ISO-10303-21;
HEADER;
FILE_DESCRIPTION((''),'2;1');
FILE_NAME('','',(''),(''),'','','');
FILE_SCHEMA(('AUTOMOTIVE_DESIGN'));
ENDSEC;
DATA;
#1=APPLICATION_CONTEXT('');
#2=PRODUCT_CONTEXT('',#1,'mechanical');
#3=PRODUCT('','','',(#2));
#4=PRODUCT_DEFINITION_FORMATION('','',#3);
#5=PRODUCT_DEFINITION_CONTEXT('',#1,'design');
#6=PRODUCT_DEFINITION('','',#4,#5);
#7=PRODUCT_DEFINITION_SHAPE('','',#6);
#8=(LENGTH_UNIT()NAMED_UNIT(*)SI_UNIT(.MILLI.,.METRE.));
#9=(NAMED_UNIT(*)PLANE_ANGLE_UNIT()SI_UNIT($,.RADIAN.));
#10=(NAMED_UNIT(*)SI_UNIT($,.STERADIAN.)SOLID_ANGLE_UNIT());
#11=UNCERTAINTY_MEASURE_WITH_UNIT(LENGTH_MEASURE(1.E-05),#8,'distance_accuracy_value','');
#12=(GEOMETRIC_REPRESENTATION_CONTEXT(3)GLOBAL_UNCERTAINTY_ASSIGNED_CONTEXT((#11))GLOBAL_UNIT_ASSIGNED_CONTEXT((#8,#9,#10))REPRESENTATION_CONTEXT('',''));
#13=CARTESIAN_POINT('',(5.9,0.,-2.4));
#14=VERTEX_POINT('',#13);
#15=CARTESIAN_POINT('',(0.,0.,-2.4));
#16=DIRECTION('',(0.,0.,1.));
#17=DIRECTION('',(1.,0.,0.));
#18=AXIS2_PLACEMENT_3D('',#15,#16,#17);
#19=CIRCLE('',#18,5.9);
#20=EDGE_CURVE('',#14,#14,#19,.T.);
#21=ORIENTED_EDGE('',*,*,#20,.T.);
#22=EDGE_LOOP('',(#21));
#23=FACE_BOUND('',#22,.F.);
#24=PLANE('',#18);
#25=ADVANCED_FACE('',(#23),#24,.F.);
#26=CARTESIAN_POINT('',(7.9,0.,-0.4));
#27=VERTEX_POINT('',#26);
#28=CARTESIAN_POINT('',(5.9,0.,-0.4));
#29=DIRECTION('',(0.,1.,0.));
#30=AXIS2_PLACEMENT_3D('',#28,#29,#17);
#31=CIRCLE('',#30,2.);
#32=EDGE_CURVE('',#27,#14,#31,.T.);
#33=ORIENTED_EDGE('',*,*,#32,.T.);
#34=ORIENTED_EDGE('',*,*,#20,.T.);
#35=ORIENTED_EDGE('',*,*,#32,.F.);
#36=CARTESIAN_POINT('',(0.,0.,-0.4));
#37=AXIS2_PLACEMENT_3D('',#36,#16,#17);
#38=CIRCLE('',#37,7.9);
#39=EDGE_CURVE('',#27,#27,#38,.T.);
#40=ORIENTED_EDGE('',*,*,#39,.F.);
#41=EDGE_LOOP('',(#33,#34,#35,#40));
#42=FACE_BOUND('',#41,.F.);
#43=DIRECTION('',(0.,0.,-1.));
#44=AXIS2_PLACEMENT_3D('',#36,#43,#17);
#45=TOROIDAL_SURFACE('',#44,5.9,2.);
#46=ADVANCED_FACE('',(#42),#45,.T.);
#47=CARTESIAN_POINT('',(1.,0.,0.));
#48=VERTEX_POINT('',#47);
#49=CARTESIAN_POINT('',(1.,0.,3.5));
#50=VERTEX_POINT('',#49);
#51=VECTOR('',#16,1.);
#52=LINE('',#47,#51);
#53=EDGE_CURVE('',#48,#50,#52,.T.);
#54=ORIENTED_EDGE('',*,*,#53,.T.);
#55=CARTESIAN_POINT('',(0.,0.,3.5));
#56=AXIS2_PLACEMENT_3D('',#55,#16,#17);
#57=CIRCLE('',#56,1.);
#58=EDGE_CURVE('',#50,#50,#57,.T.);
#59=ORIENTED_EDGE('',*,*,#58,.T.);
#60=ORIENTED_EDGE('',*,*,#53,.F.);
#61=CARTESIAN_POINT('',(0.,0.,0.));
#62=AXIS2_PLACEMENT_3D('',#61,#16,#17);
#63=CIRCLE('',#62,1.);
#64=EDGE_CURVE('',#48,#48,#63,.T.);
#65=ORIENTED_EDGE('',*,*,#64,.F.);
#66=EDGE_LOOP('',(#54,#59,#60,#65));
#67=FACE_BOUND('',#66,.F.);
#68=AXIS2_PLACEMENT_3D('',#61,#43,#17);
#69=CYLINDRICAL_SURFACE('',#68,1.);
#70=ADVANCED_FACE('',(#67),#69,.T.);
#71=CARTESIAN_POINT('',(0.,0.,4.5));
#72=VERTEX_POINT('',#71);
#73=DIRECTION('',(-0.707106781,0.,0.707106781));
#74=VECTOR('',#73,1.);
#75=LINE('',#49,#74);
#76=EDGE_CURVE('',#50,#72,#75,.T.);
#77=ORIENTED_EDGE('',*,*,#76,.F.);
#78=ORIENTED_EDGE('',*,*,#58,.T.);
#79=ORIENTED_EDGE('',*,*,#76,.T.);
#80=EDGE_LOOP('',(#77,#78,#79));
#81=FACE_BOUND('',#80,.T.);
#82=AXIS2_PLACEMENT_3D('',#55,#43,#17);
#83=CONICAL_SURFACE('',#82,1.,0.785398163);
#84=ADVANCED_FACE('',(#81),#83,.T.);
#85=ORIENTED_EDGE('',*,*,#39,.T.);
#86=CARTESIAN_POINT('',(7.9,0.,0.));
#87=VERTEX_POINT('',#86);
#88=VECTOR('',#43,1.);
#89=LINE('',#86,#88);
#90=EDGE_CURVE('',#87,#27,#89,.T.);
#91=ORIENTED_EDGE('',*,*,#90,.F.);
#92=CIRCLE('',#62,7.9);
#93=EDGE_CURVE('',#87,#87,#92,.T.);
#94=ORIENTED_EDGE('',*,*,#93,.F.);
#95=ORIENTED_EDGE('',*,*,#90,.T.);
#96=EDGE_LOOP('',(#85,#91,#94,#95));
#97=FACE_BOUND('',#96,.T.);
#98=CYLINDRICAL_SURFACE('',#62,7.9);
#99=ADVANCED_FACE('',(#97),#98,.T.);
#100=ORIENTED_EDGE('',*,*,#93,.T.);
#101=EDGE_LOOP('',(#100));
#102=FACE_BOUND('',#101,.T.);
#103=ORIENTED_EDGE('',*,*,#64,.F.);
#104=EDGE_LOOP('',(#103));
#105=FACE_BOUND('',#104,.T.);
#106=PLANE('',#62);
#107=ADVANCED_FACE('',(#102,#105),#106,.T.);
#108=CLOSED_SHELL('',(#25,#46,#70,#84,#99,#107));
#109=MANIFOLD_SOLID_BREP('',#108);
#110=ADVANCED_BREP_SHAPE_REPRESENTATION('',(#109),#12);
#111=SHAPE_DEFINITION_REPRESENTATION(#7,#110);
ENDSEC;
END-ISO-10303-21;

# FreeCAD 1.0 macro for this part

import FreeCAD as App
import Part
import Sketcher
from FreeCAD import Vector


def edges_at(feature, points):
    """Names of the edges that pass closest to the given points."""
    edges = feature.Shape.Edges
    near = lambda p: min(range(len(edges)), key=lambda i: edges[i].distToShape(Part.Vertex(*p))[0])
    return sorted({f"Edge{near(p) + 1}" for p in points})

doc = App.newDocument("Part")
params = doc.addObject("Spreadsheet::Sheet", "Params")
for row, (alias, value) in enumerate([
    ("sketch1_diameter", "15.8 mm"),
    ("pad1_length", "2.4 mm"),
    ("sketch2_diameter", "2 mm"),
    ("pad2_length", "4.5 mm"),
    ("fillet_radius", "2 mm"),
    ("chamfer_size", "1 mm"),
], start=1):
    params.set(f"A{row}", alias)
    params.set(f"B{row}", "=" + value)
    params.setAlias(f"B{row}", alias)

body = doc.addObject("PartDesign::Body", "Body")

# Sketch on XY plane
sketch1 = body.newObject("Sketcher::SketchObject", "Sketch")
sketch1.AttachmentSupport = (doc.getObject("XY_Plane"), [""])
sketch1.MapMode = "FlatFace"
sketch1.addGeometry(Part.Circle(Vector(0, 0, 0), Vector(0, 0, 1), 8), False)
sketch1.addConstraint([
    Sketcher.Constraint("Coincident", 0, 3, -1, 1),
    Sketcher.Constraint("Diameter", 0, 15.8),
])
sketch1.setExpression("Constraints[1]", "Params.sketch1_diameter")
pad1 = body.newObject("PartDesign::Pad", "Pad")
pad1.Profile = sketch1
pad1.setExpression("Length", "Params.pad1_length")
pad1.Reversed = True

# Sketch on XY plane
sketch2 = body.newObject("Sketcher::SketchObject", "Sketch001")
sketch2.AttachmentSupport = (doc.getObject("XY_Plane"), [""])
sketch2.MapMode = "FlatFace"
sketch2.addGeometry(Part.Circle(Vector(0, 0, 0), Vector(0, 0, 1), 1), False)
sketch2.addConstraint([
    Sketcher.Constraint("Coincident", 0, 3, -1, 1),
    Sketcher.Constraint("Diameter", 0, 2.0),
])
sketch2.setExpression("Constraints[1]", "Params.sketch2_diameter")
pad2 = body.newObject("PartDesign::Pad", "Pad001")
pad2.Profile = sketch2
pad2.setExpression("Length", "Params.pad2_length")
doc.recompute()

fillet = body.newObject("PartDesign::Fillet", "Fillet")
fillet.Base = (pad2, edges_at(pad2, [(-7.9, 0, -2.4)]))
fillet.setExpression("Radius", "Params.fillet_radius")
doc.recompute()

chamfer = body.newObject("PartDesign::Chamfer", "Chamfer")
chamfer.Base = (fillet, edges_at(fillet, [(-1, 0, 4.5)]))
chamfer.setExpression("Size", "Params.chamfer_size")

doc.recompute()
